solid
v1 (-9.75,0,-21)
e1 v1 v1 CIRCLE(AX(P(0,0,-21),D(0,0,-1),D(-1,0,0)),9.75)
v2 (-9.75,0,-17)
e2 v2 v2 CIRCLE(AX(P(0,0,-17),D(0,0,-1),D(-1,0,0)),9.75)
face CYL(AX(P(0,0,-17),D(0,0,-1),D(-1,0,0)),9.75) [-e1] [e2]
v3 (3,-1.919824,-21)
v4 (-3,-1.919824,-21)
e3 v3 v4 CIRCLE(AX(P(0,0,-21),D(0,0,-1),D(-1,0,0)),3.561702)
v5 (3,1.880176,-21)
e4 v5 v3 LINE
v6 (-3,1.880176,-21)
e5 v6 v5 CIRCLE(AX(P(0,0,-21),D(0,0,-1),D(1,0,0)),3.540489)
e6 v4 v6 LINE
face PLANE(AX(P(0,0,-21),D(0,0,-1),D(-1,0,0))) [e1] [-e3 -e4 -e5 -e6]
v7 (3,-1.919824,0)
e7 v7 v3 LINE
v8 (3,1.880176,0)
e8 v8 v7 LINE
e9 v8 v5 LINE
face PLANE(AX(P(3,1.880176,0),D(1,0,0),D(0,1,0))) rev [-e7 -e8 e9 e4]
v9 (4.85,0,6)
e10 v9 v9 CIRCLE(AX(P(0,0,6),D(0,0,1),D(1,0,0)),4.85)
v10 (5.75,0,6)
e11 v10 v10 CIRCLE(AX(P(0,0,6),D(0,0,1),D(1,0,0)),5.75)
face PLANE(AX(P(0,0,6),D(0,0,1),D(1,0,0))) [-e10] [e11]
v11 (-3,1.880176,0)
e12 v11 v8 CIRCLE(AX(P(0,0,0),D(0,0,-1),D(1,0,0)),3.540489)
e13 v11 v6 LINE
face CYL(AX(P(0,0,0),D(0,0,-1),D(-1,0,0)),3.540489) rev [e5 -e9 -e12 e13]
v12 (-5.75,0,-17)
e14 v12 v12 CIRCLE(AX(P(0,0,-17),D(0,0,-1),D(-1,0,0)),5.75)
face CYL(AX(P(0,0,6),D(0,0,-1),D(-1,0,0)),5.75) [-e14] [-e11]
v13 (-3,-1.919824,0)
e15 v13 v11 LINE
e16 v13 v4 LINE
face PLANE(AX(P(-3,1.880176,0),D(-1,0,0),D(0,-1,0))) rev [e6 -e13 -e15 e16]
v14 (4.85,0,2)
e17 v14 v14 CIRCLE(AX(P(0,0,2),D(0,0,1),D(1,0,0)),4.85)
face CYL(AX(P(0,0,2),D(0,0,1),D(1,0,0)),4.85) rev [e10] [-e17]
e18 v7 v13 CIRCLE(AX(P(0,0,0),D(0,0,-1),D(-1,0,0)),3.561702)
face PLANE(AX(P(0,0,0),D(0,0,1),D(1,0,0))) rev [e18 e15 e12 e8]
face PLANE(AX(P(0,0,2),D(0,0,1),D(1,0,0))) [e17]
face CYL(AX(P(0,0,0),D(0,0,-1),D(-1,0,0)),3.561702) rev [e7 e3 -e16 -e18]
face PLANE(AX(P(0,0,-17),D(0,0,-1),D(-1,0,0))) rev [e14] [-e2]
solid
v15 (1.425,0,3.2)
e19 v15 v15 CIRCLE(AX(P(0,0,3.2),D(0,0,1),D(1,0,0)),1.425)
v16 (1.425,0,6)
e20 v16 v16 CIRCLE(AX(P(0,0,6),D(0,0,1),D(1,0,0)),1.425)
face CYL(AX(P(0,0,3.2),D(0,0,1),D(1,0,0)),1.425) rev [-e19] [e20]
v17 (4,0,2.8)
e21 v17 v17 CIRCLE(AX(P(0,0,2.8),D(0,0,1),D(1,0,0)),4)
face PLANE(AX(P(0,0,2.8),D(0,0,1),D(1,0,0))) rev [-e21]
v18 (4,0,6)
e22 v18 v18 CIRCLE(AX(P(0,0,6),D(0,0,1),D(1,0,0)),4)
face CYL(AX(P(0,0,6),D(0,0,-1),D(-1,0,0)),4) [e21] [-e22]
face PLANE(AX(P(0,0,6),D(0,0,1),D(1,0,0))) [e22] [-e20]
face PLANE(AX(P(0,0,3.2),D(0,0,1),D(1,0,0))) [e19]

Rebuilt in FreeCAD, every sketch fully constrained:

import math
import FreeCAD as App
import Part
import Sketcher
Q = App.Units.Quantity

doc = App.newDocument("Part")
body = doc.addObject("PartDesign::Body", "Body")

sketch1 = body.newObject("Sketcher::SketchObject", "Sketch")
sketch1.AttachmentSupport = (doc.getObject("XY_Plane"), [""])
sketch1.MapMode = "FlatFace"
sketch1.addGeometry(Part.Circle(App.Vector(0, 0, 0), App.Vector(0, 0, 1), 6), False)
sketch1.addConstraint([
    Sketcher.Constraint("Coincident", 0, 3, -1, 1),
    Sketcher.Constraint("Diameter", 0, Q("11.5 mm")),
])
pad1 = body.newObject("PartDesign::Pad", "Pad")
pad1.Profile = sketch1
pad1.Length = 6

sketch2 = body.newObject("Sketcher::SketchObject", "Sketch001")
sketch2.AttachmentSupport = (doc.getObject("XY_Plane"), [""])
sketch2.MapMode = "FlatFace"
sketch2.AttachmentOffset = App.Placement(App.Vector(0, 0, 6), App.Rotation())
sketch2.addGeometry(Part.Circle(App.Vector(0, 0, 0), App.Vector(0, 0, 1), 4.8), False)
sketch2.addConstraint([
    Sketcher.Constraint("Coincident", 0, 3, -1, 1),
    Sketcher.Constraint("Diameter", 0, Q("9.7 mm")),
])
pocket1 = body.newObject("PartDesign::Pocket", "Pocket")
pocket1.Profile = sketch2
pocket1.Length = 4

sketch3 = body.newObject("Sketcher::SketchObject", "Sketch002")
sketch3.AttachmentSupport = (doc.getObject("XY_Plane"), [""])
sketch3.MapMode = "FlatFace"
sketch3.addGeometry(Part.Circle(App.Vector(0, 0, 0), App.Vector(0, 0, 1), 4.8), False)
sketch3.addConstraint([
    Sketcher.Constraint("Coincident", 0, 3, -1, 1),
    Sketcher.Constraint("Diameter", 0, Q("9.5 mm")),
])
pad2 = body.newObject("PartDesign::Pad", "Pad001")
pad2.Profile = sketch3
pad2.Length = 21
pad2.Reversed = True

sketch4 = body.newObject("Sketcher::SketchObject", "Sketch003")
sketch4.AttachmentSupport = (doc.getObject("XY_Plane"), [""])
sketch4.MapMode = "FlatFace"
sketch4.AttachmentOffset = App.Placement(App.Vector(0, 0, -21), App.Rotation())
sketch4.addGeometry([
    Part.LineSegment(App.Vector(3, 1.9, 0), App.Vector(3, -1.9, 0)),
    Part.ArcOfCircle(Part.Circle(App.Vector(0, 0, 0), App.Vector(0, 0, 1), 3.6), math.radians(-147), math.radians(-33)),
    Part.LineSegment(App.Vector(-3, -1.9, 0), App.Vector(-3, 1.9, 0)),
    Part.ArcOfCircle(Part.Circle(App.Vector(0, 0, 0), App.Vector(0, 0, 1), 3.5), math.radians(32), math.radians(148)),
], False)
sketch4.addConstraint([
    Sketcher.Constraint("Coincident", 0, 2, 1, 2),
    Sketcher.Constraint("Coincident", 1, 1, 2, 1),
    Sketcher.Constraint("Coincident", 2, 2, 3, 2),
    Sketcher.Constraint("Coincident", 3, 1, 0, 1),
    Sketcher.Constraint("Vertical", 0),
    Sketcher.Constraint("Vertical", 2),
    Sketcher.Constraint("Coincident", 1, 3, -1, 1),
    Sketcher.Constraint("Coincident", 3, 3, -1, 1),
    Sketcher.Constraint("Horizontal", 0, 2, 1, 1),
    Sketcher.Constraint("DistanceY", 0, 2, 0, 1, Q("3.8 mm")),
    Sketcher.Constraint("DistanceX", -1, 1, 0, 2, Q("3 mm")),
    Sketcher.Constraint("Radius", 3, Q("3.540489 mm")),
])
pocket2 = body.newObject("PartDesign::Pocket", "Pocket001")
pocket2.Profile = sketch4
pocket2.Length = 21
pocket2.Reversed = True

sketch5 = body.newObject("Sketcher::SketchObject", "Sketch004")
sketch5.AttachmentSupport = (doc.getObject("XY_Plane"), [""])
sketch5.MapMode = "FlatFace"
sketch5.AttachmentOffset = App.Placement(App.Vector(0, 0, -21), App.Rotation())
sketch5.addGeometry([
    Part.Circle(App.Vector(0, 0, 0), App.Vector(0, 0, 1), 5.8),
    Part.Circle(App.Vector(0, 0, 0), App.Vector(0, 0, 1), 4.8),
], False)
sketch5.addConstraint([
    Sketcher.Constraint("Coincident", 0, 3, -1, 1),
    Sketcher.Constraint("Coincident", 1, 3, -1, 1),
    Sketcher.Constraint("Diameter", 0, Q("11.5 mm")),
    Sketcher.Constraint("Diameter", 1, Q("9.5 mm")),
])
pad3 = body.newObject("PartDesign::Pad", "Pad002")
pad3.Profile = sketch5
pad3.Length = 21

sketch6 = body.newObject("Sketcher::SketchObject", "Sketch005")
sketch6.AttachmentSupport = (doc.getObject("XY_Plane"), [""])
sketch6.MapMode = "FlatFace"
sketch6.AttachmentOffset = App.Placement(App.Vector(0, 0, -21), App.Rotation())
sketch6.addGeometry([
    Part.Circle(App.Vector(0, 0, 0), App.Vector(0, 0, 1), 10),
    Part.Circle(App.Vector(0, 0, 0), App.Vector(0, 0, 1), 6),
], False)
sketch6.addConstraint([
    Sketcher.Constraint("Coincident", 0, 3, -1, 1),
    Sketcher.Constraint("Coincident", 1, 3, -1, 1),
    Sketcher.Constraint("Diameter", 0, Q("19.5 mm")),
    Sketcher.Constraint("Diameter", 1, Q("11.5 mm")),
])
pad4 = body.newObject("PartDesign::Pad", "Pad003")
pad4.Profile = sketch6
pad4.Length = 4
body2 = doc.addObject("PartDesign::Body", "Body001")

sketch7 = body2.newObject("Sketcher::SketchObject", "Sketch006")
sketch7.AttachmentSupport = (doc.getObject("XY_Plane001"), [""])
sketch7.MapMode = "FlatFace"
sketch7.AttachmentOffset = App.Placement(App.Vector(0, 0, 2.8), App.Rotation())
sketch7.addGeometry(Part.Circle(App.Vector(0, 0, 0), App.Vector(0, 0, 1), 4), False)
sketch7.addConstraint([
    Sketcher.Constraint("Coincident", 0, 3, -1, 1),
    Sketcher.Constraint("Diameter", 0, Q("8 mm")),
])
pad5 = body2.newObject("PartDesign::Pad", "Pad004")
pad5.Profile = sketch7
pad5.Length = 3.2

sketch8 = body2.newObject("Sketcher::SketchObject", "Sketch007")
sketch8.AttachmentSupport = (doc.getObject("XY_Plane001"), [""])
sketch8.MapMode = "FlatFace"
sketch8.AttachmentOffset = App.Placement(App.Vector(0, 0, 6), App.Rotation())
sketch8.addGeometry(Part.Circle(App.Vector(0, 0, 0), App.Vector(0, 0, 1), 1.4), False)
sketch8.addConstraint([
    Sketcher.Constraint("Coincident", 0, 3, -1, 1),
    Sketcher.Constraint("Diameter", 0, Q("2.85 mm")),
])
pocket3 = body2.newObject("PartDesign::Pocket", "Pocket002")
pocket3.Profile = sketch8
pocket3.Length = 2.8

doc.recompute()
